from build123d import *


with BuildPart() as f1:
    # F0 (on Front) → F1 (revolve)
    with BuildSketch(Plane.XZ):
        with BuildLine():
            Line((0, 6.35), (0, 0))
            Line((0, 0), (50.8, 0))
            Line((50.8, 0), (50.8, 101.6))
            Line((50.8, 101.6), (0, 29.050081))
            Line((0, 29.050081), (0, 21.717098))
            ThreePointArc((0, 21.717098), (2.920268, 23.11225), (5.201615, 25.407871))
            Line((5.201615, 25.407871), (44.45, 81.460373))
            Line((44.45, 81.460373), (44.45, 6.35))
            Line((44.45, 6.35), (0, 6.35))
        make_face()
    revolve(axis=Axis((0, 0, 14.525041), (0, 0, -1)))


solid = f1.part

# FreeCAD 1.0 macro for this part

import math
import FreeCAD as App
import Part
import Sketcher
from FreeCAD import Vector
Q = App.Units.Quantity

doc = App.newDocument("Part")
body = doc.addObject("PartDesign::Body", "Body")

sketch1 = body.newObject("Sketcher::SketchObject", "Sketch")
sketch1.AttachmentSupport = (doc.getObject("XZ_Plane"), [""])
sketch1.MapMode = "FlatFace"
sketch1.addGeometry([
    Part.LineSegment(Vector(0, 6.35, 0), Vector(0, 0, 0)),
    Part.LineSegment(Vector(0, 0, 0), Vector(50.8, 0, 0)),
    Part.LineSegment(Vector(50.8, 0, 0), Vector(50.8, 101.6, 0)),
    Part.LineSegment(Vector(50.8, 101.6, 0), Vector(0, 29.050081, 0)),
    Part.LineSegment(Vector(0, 29.050081, 0), Vector(0, 21.717098, 0)),
    Part.ArcOfCircle(Part.Circle(Vector(-2.56946, 30.849235, 0), Vector(0, 0, 1), 9.48673), math.radians(-74.285278), math.radians(-34.999992)),
    Part.LineSegment(Vector(5.201615, 25.407871, 0), Vector(44.45, 81.460373, 0)),
    Part.LineSegment(Vector(44.45, 81.460373, 0), Vector(44.45, 6.35, 0)),
    Part.LineSegment(Vector(44.45, 6.35, 0), Vector(0, 6.35, 0)),
], False)
sketch1.addConstraint([
    Sketcher.Constraint("Coincident", 0, 2, 1, 1),
    Sketcher.Constraint("Coincident", 1, 2, 2, 1),
    Sketcher.Constraint("Coincident", 2, 2, 3, 1),
    Sketcher.Constraint("Coincident", 3, 2, 4, 1),
    Sketcher.Constraint("Coincident", 4, 2, 5, 1),
    Sketcher.Constraint("Tangent", 5, 2, 6, 1),
    Sketcher.Constraint("Coincident", 6, 2, 7, 1),
    Sketcher.Constraint("Coincident", 7, 2, 8, 1),
    Sketcher.Constraint("Coincident", 8, 2, 0, 1),
    Sketcher.Constraint("Vertical", 0),
    Sketcher.Constraint("Horizontal", 1),
    Sketcher.Constraint("Vertical", 2),
    Sketcher.Constraint("Vertical", 4),
    Sketcher.Constraint("Vertical", 7),
    Sketcher.Constraint("Horizontal", 8),
    Sketcher.Constraint("Coincident", 0, 2, -1, 1),
    Sketcher.Constraint("PointOnObject", 3, 2, -2),
    Sketcher.Constraint("Parallel", 3, 6),
    Sketcher.Constraint("DistanceX", 1, 1, 1, 2, Q("2 in")),
    Sketcher.Constraint("DistanceY", 2, 1, 2, 2, Q("4 in")),
    Sketcher.Constraint("Angle", 3, Q("-125 deg")),
    Sketcher.Constraint("DistanceX", 8, 2, 8, 1, Q("1.75 in")),
    Sketcher.Constraint("DistanceY", 0, 2, 0, 1, Q("0.25 in")),
    Sketcher.Constraint("DistanceY", 4, 2, 4, 1, Q("0.2887001 in")),
    Sketcher.Constraint("Radius", 5, 9.48673),
    Sketcher.Constraint("Distance", 6, 68.42747),
])
revolution = body.newObject("PartDesign::Revolution", "Revolution")
revolution.Profile = sketch1
revolution.ReferenceAxis = (sketch1, ["V_Axis"])
revolution.Angle = 360

doc.recompute()
